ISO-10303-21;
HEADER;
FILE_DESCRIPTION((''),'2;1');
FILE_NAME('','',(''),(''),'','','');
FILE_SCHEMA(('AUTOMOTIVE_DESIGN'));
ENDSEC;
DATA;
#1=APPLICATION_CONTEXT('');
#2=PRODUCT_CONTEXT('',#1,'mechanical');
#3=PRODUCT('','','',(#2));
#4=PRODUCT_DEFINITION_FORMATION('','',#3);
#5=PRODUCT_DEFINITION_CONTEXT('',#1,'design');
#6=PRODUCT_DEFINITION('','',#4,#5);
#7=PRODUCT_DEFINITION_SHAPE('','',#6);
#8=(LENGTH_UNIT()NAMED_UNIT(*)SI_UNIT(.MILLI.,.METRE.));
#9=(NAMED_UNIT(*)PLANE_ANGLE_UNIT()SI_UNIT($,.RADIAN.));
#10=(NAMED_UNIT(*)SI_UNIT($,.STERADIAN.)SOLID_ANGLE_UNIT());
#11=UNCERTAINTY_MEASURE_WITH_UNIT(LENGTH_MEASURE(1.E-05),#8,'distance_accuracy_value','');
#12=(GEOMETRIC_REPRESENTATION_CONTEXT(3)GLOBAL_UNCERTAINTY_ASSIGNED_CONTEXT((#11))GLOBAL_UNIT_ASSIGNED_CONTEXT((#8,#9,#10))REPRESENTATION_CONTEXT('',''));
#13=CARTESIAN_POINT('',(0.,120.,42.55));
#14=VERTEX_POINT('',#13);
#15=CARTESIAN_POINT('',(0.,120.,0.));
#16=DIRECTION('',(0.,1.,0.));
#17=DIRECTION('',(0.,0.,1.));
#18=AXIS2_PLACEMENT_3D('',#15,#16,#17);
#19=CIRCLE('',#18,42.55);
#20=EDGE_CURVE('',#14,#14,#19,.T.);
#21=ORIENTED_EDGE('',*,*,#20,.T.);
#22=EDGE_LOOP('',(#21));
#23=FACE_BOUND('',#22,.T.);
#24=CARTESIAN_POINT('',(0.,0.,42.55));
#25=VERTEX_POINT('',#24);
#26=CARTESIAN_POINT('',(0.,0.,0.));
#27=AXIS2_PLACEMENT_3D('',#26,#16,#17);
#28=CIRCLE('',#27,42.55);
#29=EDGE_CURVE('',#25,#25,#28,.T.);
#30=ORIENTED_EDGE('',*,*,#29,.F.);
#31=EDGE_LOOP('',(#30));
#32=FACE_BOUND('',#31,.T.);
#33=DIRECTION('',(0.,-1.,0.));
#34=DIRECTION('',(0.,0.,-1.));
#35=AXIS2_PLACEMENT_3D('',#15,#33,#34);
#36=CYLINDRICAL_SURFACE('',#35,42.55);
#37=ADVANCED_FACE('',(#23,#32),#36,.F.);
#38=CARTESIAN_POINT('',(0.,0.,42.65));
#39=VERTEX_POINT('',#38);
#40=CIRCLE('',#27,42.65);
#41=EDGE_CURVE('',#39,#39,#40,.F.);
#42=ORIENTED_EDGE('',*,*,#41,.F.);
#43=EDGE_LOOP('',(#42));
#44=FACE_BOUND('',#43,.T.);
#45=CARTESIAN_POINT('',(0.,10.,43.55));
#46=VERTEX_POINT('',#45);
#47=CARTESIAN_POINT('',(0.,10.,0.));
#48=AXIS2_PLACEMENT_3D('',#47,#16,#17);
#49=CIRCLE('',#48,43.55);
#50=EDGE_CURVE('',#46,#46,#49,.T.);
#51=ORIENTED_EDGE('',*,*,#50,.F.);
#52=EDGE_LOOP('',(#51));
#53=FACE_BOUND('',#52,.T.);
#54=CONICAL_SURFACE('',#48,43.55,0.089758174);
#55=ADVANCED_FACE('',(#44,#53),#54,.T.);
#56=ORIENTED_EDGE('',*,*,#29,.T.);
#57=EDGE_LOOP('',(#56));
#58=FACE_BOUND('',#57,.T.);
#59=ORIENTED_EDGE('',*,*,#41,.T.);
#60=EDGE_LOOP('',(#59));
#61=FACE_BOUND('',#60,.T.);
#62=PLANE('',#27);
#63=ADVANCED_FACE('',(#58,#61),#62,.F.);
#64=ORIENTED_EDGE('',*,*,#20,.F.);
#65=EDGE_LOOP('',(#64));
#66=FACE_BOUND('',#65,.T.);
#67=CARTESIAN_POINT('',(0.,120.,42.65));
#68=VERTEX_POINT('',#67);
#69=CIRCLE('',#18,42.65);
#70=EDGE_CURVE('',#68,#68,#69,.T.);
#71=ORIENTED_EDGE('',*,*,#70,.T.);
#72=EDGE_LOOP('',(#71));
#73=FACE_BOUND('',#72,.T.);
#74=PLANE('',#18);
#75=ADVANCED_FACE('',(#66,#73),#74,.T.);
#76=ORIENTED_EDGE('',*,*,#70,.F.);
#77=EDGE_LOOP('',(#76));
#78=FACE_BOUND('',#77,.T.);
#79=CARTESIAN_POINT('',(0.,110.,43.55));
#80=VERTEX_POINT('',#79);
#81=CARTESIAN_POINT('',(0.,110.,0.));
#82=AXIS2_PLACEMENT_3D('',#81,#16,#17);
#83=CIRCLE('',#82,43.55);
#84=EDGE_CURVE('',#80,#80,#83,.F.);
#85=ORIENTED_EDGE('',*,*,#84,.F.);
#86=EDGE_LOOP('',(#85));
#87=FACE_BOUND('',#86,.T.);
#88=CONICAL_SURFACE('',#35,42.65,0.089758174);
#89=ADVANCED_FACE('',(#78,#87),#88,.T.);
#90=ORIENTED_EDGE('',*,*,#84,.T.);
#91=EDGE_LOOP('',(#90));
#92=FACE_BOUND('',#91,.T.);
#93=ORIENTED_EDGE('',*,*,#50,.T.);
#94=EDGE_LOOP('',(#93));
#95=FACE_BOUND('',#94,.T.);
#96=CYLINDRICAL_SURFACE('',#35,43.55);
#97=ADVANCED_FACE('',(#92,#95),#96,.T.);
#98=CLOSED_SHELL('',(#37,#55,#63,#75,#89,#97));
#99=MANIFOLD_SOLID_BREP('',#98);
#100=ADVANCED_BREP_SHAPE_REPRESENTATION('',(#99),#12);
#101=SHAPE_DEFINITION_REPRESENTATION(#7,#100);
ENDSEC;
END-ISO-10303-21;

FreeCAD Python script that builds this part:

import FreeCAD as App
import Part
import Sketcher
from FreeCAD import Vector


def edges_at(feature, points):
    """Names of the edges that pass closest to the given points."""
    edges = feature.Shape.Edges
    near = lambda p: min(range(len(edges)), key=lambda i: edges[i].distToShape(Part.Vertex(*p))[0])
    return sorted({f"Edge{near(p) + 1}" for p in points})

doc = App.newDocument("Part")
body = doc.addObject("PartDesign::Body", "Body")

# Sketch on XZ plane
sketch1 = body.newObject("Sketcher::SketchObject", "Sketch")
sketch1.AttachmentSupport = (doc.getObject("XZ_Plane"), [""])
sketch1.MapMode = "FlatFace"
sketch1.addGeometry([
    Part.Circle(Vector(0, 0, 0), Vector(0, 0, 1), 44),
    Part.Circle(Vector(0, 0, 0), Vector(0, 0, 1), 43),
], False)
sketch1.addConstraint([
    Sketcher.Constraint("Coincident", 0, 3, -1, 1),
    Sketcher.Constraint("Coincident", 1, 3, -1, 1),
    Sketcher.Constraint("Diameter", 0, 87.1),
    Sketcher.Constraint("Diameter", 1, 85.1),
])
pad1 = body.newObject("PartDesign::Pad", "Pad")
pad1.Profile = sketch1
pad1.Length = 120
pad1.Reversed = True
doc.recompute()

chamfer = body.newObject("PartDesign::Chamfer", "Chamfer")
chamfer.Base = (pad1, edges_at(pad1, [(-43.55, 120, 0)]))
chamfer.ChamferType = "Two distances"
chamfer.Size = 10
chamfer.Size2 = 0.9
doc.recompute()

chamfer2 = body.newObject("PartDesign::Chamfer", "Chamfer001")
chamfer2.Base = (chamfer, edges_at(chamfer, [(-43.55, 0, 0)]))
chamfer2.ChamferType = "Two distances"
chamfer2.Size = 0.9
chamfer2.Size2 = 10
chamfer2.FlipDirection = True

doc.recompute()
